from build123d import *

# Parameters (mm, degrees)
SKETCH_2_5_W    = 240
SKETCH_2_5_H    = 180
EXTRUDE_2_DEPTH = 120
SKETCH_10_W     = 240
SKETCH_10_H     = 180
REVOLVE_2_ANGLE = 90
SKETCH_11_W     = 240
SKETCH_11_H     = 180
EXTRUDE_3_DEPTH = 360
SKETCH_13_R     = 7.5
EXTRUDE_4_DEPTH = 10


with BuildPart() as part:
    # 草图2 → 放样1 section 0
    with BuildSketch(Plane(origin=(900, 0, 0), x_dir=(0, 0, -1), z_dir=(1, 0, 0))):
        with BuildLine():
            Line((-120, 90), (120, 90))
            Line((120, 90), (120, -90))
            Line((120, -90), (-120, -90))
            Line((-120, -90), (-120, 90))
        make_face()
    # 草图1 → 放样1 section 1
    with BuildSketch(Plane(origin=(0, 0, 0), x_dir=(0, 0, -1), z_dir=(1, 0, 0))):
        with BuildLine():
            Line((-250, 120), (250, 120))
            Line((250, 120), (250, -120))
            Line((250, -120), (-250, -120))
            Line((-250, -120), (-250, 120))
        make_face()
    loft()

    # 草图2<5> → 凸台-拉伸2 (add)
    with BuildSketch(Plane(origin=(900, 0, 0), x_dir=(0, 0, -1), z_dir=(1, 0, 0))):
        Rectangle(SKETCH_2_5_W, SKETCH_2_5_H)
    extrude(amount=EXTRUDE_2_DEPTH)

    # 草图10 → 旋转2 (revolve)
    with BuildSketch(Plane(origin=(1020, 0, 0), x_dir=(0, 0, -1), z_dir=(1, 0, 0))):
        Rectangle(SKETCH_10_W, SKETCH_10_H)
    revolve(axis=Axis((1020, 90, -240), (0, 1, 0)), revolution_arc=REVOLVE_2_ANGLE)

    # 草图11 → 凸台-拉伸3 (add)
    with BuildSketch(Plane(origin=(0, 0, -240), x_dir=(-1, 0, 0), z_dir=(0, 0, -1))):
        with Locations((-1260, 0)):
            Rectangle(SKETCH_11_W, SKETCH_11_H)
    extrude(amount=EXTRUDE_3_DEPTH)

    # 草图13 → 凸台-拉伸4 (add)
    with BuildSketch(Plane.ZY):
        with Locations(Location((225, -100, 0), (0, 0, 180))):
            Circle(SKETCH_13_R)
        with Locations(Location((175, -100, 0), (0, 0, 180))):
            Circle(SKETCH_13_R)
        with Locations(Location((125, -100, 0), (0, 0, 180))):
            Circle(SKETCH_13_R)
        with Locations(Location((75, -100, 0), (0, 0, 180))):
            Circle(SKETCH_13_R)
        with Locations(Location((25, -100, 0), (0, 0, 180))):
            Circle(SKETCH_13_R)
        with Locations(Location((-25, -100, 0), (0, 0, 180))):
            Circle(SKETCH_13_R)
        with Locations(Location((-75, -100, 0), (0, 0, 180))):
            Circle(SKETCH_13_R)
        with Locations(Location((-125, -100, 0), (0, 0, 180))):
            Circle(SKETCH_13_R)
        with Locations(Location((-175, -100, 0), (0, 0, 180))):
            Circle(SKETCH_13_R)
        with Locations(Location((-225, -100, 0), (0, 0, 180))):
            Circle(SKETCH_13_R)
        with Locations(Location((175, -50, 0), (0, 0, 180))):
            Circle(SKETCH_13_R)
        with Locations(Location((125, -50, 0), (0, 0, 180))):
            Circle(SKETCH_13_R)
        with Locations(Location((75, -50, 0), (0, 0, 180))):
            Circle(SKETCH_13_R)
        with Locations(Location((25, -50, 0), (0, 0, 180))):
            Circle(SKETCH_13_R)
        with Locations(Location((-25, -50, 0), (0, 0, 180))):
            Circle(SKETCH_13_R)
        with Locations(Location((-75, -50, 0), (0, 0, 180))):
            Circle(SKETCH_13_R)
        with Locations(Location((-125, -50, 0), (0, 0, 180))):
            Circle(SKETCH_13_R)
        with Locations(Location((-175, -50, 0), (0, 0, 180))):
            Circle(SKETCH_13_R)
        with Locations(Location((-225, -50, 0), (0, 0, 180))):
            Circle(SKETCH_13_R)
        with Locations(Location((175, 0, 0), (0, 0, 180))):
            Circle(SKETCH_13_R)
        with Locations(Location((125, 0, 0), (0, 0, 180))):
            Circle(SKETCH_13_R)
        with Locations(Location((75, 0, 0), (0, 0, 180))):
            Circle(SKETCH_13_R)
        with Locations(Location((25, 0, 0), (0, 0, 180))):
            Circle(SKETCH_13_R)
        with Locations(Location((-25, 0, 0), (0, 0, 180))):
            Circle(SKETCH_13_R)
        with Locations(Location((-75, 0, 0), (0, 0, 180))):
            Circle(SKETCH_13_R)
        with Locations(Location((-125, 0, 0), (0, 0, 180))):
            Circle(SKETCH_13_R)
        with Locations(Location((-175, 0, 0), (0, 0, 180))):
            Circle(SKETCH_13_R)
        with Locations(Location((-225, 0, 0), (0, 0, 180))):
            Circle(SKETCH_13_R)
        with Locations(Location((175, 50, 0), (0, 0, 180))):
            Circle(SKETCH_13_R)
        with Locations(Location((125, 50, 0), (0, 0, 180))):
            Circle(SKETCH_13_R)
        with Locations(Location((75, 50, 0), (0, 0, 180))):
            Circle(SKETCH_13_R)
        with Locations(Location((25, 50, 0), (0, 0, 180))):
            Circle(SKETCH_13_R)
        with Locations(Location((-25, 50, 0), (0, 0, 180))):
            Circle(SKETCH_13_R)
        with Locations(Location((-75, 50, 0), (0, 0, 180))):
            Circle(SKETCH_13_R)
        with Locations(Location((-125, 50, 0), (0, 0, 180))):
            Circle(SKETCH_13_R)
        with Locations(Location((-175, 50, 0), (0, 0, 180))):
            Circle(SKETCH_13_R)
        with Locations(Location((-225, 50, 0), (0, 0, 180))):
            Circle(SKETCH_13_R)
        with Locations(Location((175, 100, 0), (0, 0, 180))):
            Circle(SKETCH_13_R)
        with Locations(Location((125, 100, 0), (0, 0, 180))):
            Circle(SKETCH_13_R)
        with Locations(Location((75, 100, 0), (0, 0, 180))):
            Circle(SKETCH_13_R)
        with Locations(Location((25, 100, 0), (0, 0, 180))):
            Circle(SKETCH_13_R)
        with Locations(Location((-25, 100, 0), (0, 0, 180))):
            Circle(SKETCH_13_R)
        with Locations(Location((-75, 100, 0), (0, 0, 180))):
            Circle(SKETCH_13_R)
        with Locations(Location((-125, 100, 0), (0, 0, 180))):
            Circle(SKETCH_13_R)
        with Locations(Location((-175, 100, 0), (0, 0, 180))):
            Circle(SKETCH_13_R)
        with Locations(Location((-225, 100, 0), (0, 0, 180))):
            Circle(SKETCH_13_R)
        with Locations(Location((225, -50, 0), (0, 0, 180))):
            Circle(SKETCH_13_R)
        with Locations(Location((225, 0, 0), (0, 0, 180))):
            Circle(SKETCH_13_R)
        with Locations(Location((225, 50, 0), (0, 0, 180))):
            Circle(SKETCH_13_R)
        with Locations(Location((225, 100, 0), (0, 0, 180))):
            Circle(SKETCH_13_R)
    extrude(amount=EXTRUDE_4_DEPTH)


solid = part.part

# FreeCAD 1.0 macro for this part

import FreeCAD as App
import Part
import Sketcher
Q = App.Units.Quantity


def add_polygon(sketch, points):
    """Adds a closed chain of lines whose ends are joined by coincident constraints."""
    first, n = sketch.GeometryCount, len(points)
    for a, b in zip(points, points[1:] + points[:1]):
        sketch.addGeometry(Part.LineSegment(App.Vector(*a, 0), App.Vector(*b, 0)), False)
    for i in range(n):
        sketch.addConstraint(Sketcher.Constraint("Coincident", first + i, 2, first + (i + 1) % n, 1))

doc = App.newDocument("Part")
body = doc.addObject("PartDesign::Body", "Body")

sketch1 = body.newObject("Sketcher::SketchObject", "Sketch")
sketch1.AttachmentSupport = (doc.getObject("YZ_Plane"), [""])
sketch1.MapMode = "FlatFace"
sketch1.AttachmentOffset = App.Placement(App.Vector(0, 0, 900), App.Rotation())
add_polygon(sketch1, [(90, -120), (90, 120), (-90, 120), (-90, -120)])
sketch1.addConstraint(Sketcher.Constraint("Vertical", 0))
sketch1.addConstraint(Sketcher.Constraint("Horizontal", 1))
sketch1.addConstraint(Sketcher.Constraint("Vertical", 2))
sketch1.addConstraint(Sketcher.Constraint("Horizontal", 3))
sketch1.addConstraint(Sketcher.Constraint("Symmetric", 0, 2, 2, 2, -1, 1))
sketch1.addConstraint(Sketcher.Constraint("DistanceX", 1, 2, 1, 1, Q("180 mm")))
sketch1.addConstraint(Sketcher.Constraint("DistanceY", 0, 1, 0, 2, Q("240 mm")))

sketch2 = body.newObject("Sketcher::SketchObject", "Sketch001")
sketch2.AttachmentSupport = (doc.getObject("YZ_Plane"), [""])
sketch2.MapMode = "FlatFace"
add_polygon(sketch2, [(120, -250), (120, 250), (-120, 250), (-120, -250)])
sketch2.addConstraint(Sketcher.Constraint("Vertical", 0))
sketch2.addConstraint(Sketcher.Constraint("Horizontal", 1))
sketch2.addConstraint(Sketcher.Constraint("Vertical", 2))
sketch2.addConstraint(Sketcher.Constraint("Horizontal", 3))
sketch2.addConstraint(Sketcher.Constraint("Symmetric", 0, 2, 2, 2, -1, 1))
sketch2.addConstraint(Sketcher.Constraint("DistanceX", 1, 2, 1, 1, Q("240 mm")))
sketch2.addConstraint(Sketcher.Constraint("DistanceY", 0, 1, 0, 2, Q("500 mm")))

additiveloft = body.newObject("PartDesign::AdditiveLoft", "AdditiveLoft")
additiveloft.Profile = sketch1
additiveloft.Sections = [sketch2]

sketch3 = body.newObject("Sketcher::SketchObject", "Sketch002")
sketch3.AttachmentSupport = (doc.getObject("YZ_Plane"), [""])
sketch3.MapMode = "FlatFace"
sketch3.AttachmentOffset = App.Placement(App.Vector(0, 0, 900), App.Rotation())
add_polygon(sketch3, [(90, 120), (-90, 120), (-90, -120), (90, -120)])
sketch3.addConstraint(Sketcher.Constraint("Horizontal", 0))
sketch3.addConstraint(Sketcher.Constraint("Vertical", 1))
sketch3.addConstraint(Sketcher.Constraint("Horizontal", 2))
sketch3.addConstraint(Sketcher.Constraint("Vertical", 3))
sketch3.addConstraint(Sketcher.Constraint("Symmetric", 0, 2, 2, 2, -1, 1))
sketch3.addConstraint(Sketcher.Constraint("DistanceX", 0, 2, 0, 1, Q("180 mm")))
sketch3.addConstraint(Sketcher.Constraint("DistanceY", 1, 2, 1, 1, Q("240 mm")))
pad1 = body.newObject("PartDesign::Pad", "Pad")
pad1.Profile = sketch3
pad1.Length = 120

sketch4 = body.newObject("Sketcher::SketchObject", "Sketch003")
sketch4.AttachmentSupport = (doc.getObject("YZ_Plane"), [""])
sketch4.MapMode = "FlatFace"
sketch4.AttachmentOffset = App.Placement(App.Vector(0, 0, 1020), App.Rotation())
add_polygon(sketch4, [(90, 120), (-90, 120), (-90, -120), (90, -120)])
sketch4.addGeometry(Part.LineSegment(App.Vector(-90, -240, 0), App.Vector(90, -240, 0)), True)
sketch4.addConstraint(Sketcher.Constraint("Horizontal", 0))
sketch4.addConstraint(Sketcher.Constraint("Vertical", 1))
sketch4.addConstraint(Sketcher.Constraint("Horizontal", 2))
sketch4.addConstraint(Sketcher.Constraint("Vertical", 3))
sketch4.addConstraint(Sketcher.Constraint("Horizontal", 4))
sketch4.addConstraint(Sketcher.Constraint("Symmetric", 0, 2, 2, 2, -1, 1))
sketch4.addConstraint(Sketcher.Constraint("Vertical", 1, 2, 4, 1))
sketch4.addConstraint(Sketcher.Constraint("Vertical", 3, 2, 4, 2))
sketch4.addConstraint(Sketcher.Constraint("DistanceX", 0, 2, 0, 1, Q("180 mm")))
sketch4.addConstraint(Sketcher.Constraint("DistanceY", 1, 2, 1, 1, Q("240 mm")))
sketch4.addConstraint(Sketcher.Constraint("DistanceY", 4, 1, -1, 1, Q("240 mm")))
revolution = body.newObject("PartDesign::Revolution", "Revolution")
revolution.Profile = sketch4
revolution.ReferenceAxis = (sketch4, ["Axis0"])
revolution.Angle = 90

sketch5 = body.newObject("Sketcher::SketchObject", "Sketch004")
sketch5.AttachmentSupport = (doc.getObject("XY_Plane"), [""])
sketch5.MapMode = "FlatFace"
sketch5.AttachmentOffset = App.Placement(App.Vector(0, 0, -240), App.Rotation())
add_polygon(sketch5, [(1380, 90), (1380, -90), (1140, -90), (1140, 90)])
sketch5.addConstraint(Sketcher.Constraint("Vertical", 0))
sketch5.addConstraint(Sketcher.Constraint("Horizontal", 1))
sketch5.addConstraint(Sketcher.Constraint("Vertical", 2))
sketch5.addConstraint(Sketcher.Constraint("Horizontal", 3))
sketch5.addConstraint(Sketcher.Constraint("DistanceX", 1, 2, 1, 1, Q("240 mm")))
sketch5.addConstraint(Sketcher.Constraint("DistanceY", 0, 2, 0, 1, Q("180 mm")))
sketch5.addConstraint(Sketcher.Constraint("DistanceX", -1, 1, 0, 2, Q("1380 mm")))
sketch5.addConstraint(Sketcher.Constraint("DistanceY", 0, 2, -1, 1, Q("90 mm")))
pad2 = body.newObject("PartDesign::Pad", "Pad001")
pad2.Profile = sketch5
pad2.Length = 360
pad2.Reversed = True

sketch6 = body.newObject("Sketcher::SketchObject", "Sketch005")
sketch6.AttachmentSupport = (doc.getObject("YZ_Plane"), [""])
sketch6.MapMode = "FlatFace"
sketch6.addGeometry(Part.Circle(App.Vector(-100, 225, 0), App.Vector(0, 0, 1), 8), False)
sketch6.addGeometry(Part.Circle(App.Vector(-100, 175, 0), App.Vector(0, 0, 1), 8), False)
sketch6.addGeometry(Part.Circle(App.Vector(-100, 125, 0), App.Vector(0, 0, 1), 8), False)
sketch6.addGeometry(Part.Circle(App.Vector(-100, 75, 0), App.Vector(0, 0, 1), 8), False)
sketch6.addGeometry(Part.Circle(App.Vector(-100, 25, 0), App.Vector(0, 0, 1), 8), False)
sketch6.addGeometry(Part.Circle(App.Vector(-100, -25, 0), App.Vector(0, 0, 1), 8), False)
sketch6.addGeometry(Part.Circle(App.Vector(-100, -75, 0), App.Vector(0, 0, 1), 8), False)
sketch6.addGeometry(Part.Circle(App.Vector(-100, -125, 0), App.Vector(0, 0, 1), 8), False)
sketch6.addGeometry(Part.Circle(App.Vector(-100, -175, 0), App.Vector(0, 0, 1), 8), False)
sketch6.addGeometry(Part.Circle(App.Vector(-100, -225, 0), App.Vector(0, 0, 1), 8), False)
sketch6.addGeometry(Part.Circle(App.Vector(-50, 175, 0), App.Vector(0, 0, 1), 8), False)
sketch6.addGeometry(Part.Circle(App.Vector(-50, 125, 0), App.Vector(0, 0, 1), 8), False)
sketch6.addGeometry(Part.Circle(App.Vector(-50, 75, 0), App.Vector(0, 0, 1), 8), False)
sketch6.addGeometry(Part.Circle(App.Vector(-50, 25, 0), App.Vector(0, 0, 1), 8), False)
sketch6.addGeometry(Part.Circle(App.Vector(-50, -25, 0), App.Vector(0, 0, 1), 8), False)
sketch6.addGeometry(Part.Circle(App.Vector(-50, -75, 0), App.Vector(0, 0, 1), 8), False)
sketch6.addGeometry(Part.Circle(App.Vector(-50, -125, 0), App.Vector(0, 0, 1), 8), False)
sketch6.addGeometry(Part.Circle(App.Vector(-50, -175, 0), App.Vector(0, 0, 1), 8), False)
sketch6.addGeometry(Part.Circle(App.Vector(-50, -225, 0), App.Vector(0, 0, 1), 8), False)
sketch6.addGeometry(Part.Circle(App.Vector(0, 175, 0), App.Vector(0, 0, 1), 8), False)
sketch6.addGeometry(Part.Circle(App.Vector(0, 125, 0), App.Vector(0, 0, 1), 8), False)
sketch6.addGeometry(Part.Circle(App.Vector(0, 75, 0), App.Vector(0, 0, 1), 8), False)
sketch6.addGeometry(Part.Circle(App.Vector(0, 25, 0), App.Vector(0, 0, 1), 8), False)
sketch6.addGeometry(Part.Circle(App.Vector(0, -25, 0), App.Vector(0, 0, 1), 8), False)
sketch6.addGeometry(Part.Circle(App.Vector(0, -75, 0), App.Vector(0, 0, 1), 8), False)
sketch6.addGeometry(Part.Circle(App.Vector(0, -125, 0), App.Vector(0, 0, 1), 8), False)
sketch6.addGeometry(Part.Circle(App.Vector(0, -175, 0), App.Vector(0, 0, 1), 8), False)
sketch6.addGeometry(Part.Circle(App.Vector(0, -225, 0), App.Vector(0, 0, 1), 8), False)
sketch6.addGeometry(Part.Circle(App.Vector(50, 175, 0), App.Vector(0, 0, 1), 8), False)
sketch6.addGeometry(Part.Circle(App.Vector(50, 125, 0), App.Vector(0, 0, 1), 8), False)
sketch6.addGeometry(Part.Circle(App.Vector(50, 75, 0), App.Vector(0, 0, 1), 8), False)
sketch6.addGeometry(Part.Circle(App.Vector(50, 25, 0), App.Vector(0, 0, 1), 8), False)
sketch6.addGeometry(Part.Circle(App.Vector(50, -25, 0), App.Vector(0, 0, 1), 8), False)
sketch6.addGeometry(Part.Circle(App.Vector(50, -75, 0), App.Vector(0, 0, 1), 8), False)
sketch6.addGeometry(Part.Circle(App.Vector(50, -125, 0), App.Vector(0, 0, 1), 8), False)
sketch6.addGeometry(Part.Circle(App.Vector(50, -175, 0), App.Vector(0, 0, 1), 8), False)
sketch6.addGeometry(Part.Circle(App.Vector(50, -225, 0), App.Vector(0, 0, 1), 8), False)
sketch6.addGeometry(Part.Circle(App.Vector(100, 175, 0), App.Vector(0, 0, 1), 8), False)
sketch6.addGeometry(Part.Circle(App.Vector(100, 125, 0), App.Vector(0, 0, 1), 8), False)
sketch6.addGeometry(Part.Circle(App.Vector(100, 75, 0), App.Vector(0, 0, 1), 8), False)
sketch6.addGeometry(Part.Circle(App.Vector(100, 25, 0), App.Vector(0, 0, 1), 8), False)
sketch6.addGeometry(Part.Circle(App.Vector(100, -25, 0), App.Vector(0, 0, 1), 8), False)
sketch6.addGeometry(Part.Circle(App.Vector(100, -75, 0), App.Vector(0, 0, 1), 8), False)
sketch6.addGeometry(Part.Circle(App.Vector(100, -125, 0), App.Vector(0, 0, 1), 8), False)
sketch6.addGeometry(Part.Circle(App.Vector(100, -175, 0), App.Vector(0, 0, 1), 8), False)
sketch6.addGeometry(Part.Circle(App.Vector(100, -225, 0), App.Vector(0, 0, 1), 8), False)
sketch6.addGeometry(Part.Circle(App.Vector(-50, 225, 0), App.Vector(0, 0, 1), 8), False)
sketch6.addGeometry(Part.Circle(App.Vector(0, 225, 0), App.Vector(0, 0, 1), 8), False)
sketch6.addGeometry(Part.Circle(App.Vector(50, 225, 0), App.Vector(0, 0, 1), 8), False)
sketch6.addGeometry(Part.Circle(App.Vector(100, 225, 0), App.Vector(0, 0, 1), 8), False)
sketch6.addConstraint(Sketcher.Constraint("Equal", 0, 1))
sketch6.addConstraint(Sketcher.Constraint("Equal", 1, 2))
sketch6.addConstraint(Sketcher.Constraint("Equal", 2, 3))
sketch6.addConstraint(Sketcher.Constraint("Equal", 3, 4))
sketch6.addConstraint(Sketcher.Constraint("Equal", 4, 5))
sketch6.addConstraint(Sketcher.Constraint("Equal", 5, 6))
sketch6.addConstraint(Sketcher.Constraint("Equal", 6, 7))
sketch6.addConstraint(Sketcher.Constraint("Equal", 7, 8))
sketch6.addConstraint(Sketcher.Constraint("Equal", 8, 9))
sketch6.addConstraint(Sketcher.Constraint("Equal", 9, 10))
sketch6.addConstraint(Sketcher.Constraint("Equal", 10, 11))
sketch6.addConstraint(Sketcher.Constraint("Equal", 11, 12))
sketch6.addConstraint(Sketcher.Constraint("Equal", 12, 13))
sketch6.addConstraint(Sketcher.Constraint("Equal", 13, 14))
sketch6.addConstraint(Sketcher.Constraint("Equal", 14, 15))
sketch6.addConstraint(Sketcher.Constraint("Equal", 15, 16))
sketch6.addConstraint(Sketcher.Constraint("Equal", 16, 17))
sketch6.addConstraint(Sketcher.Constraint("Equal", 17, 18))
sketch6.addConstraint(Sketcher.Constraint("Equal", 18, 19))
sketch6.addConstraint(Sketcher.Constraint("Equal", 19, 20))
sketch6.addConstraint(Sketcher.Constraint("Equal", 20, 21))
sketch6.addConstraint(Sketcher.Constraint("Equal", 21, 22))
sketch6.addConstraint(Sketcher.Constraint("Equal", 22, 23))
sketch6.addConstraint(Sketcher.Constraint("Equal", 23, 24))
sketch6.addConstraint(Sketcher.Constraint("Equal", 24, 25))
sketch6.addConstraint(Sketcher.Constraint("Equal", 25, 26))
sketch6.addConstraint(Sketcher.Constraint("Equal", 26, 27))
sketch6.addConstraint(Sketcher.Constraint("Equal", 27, 28))
sketch6.addConstraint(Sketcher.Constraint("Equal", 28, 29))
sketch6.addConstraint(Sketcher.Constraint("Equal", 29, 30))
sketch6.addConstraint(Sketcher.Constraint("Equal", 30, 31))
sketch6.addConstraint(Sketcher.Constraint("Equal", 31, 32))
sketch6.addConstraint(Sketcher.Constraint("Equal", 32, 33))
sketch6.addConstraint(Sketcher.Constraint("Equal", 33, 34))
sketch6.addConstraint(Sketcher.Constraint("Equal", 34, 35))
sketch6.addConstraint(Sketcher.Constraint("Equal", 35, 36))
sketch6.addConstraint(Sketcher.Constraint("Equal", 36, 37))
sketch6.addConstraint(Sketcher.Constraint("Equal", 37, 38))
sketch6.addConstraint(Sketcher.Constraint("Equal", 38, 39))
sketch6.addConstraint(Sketcher.Constraint("Equal", 39, 40))
sketch6.addConstraint(Sketcher.Constraint("Equal", 40, 41))
sketch6.addConstraint(Sketcher.Constraint("Equal", 41, 42))
sketch6.addConstraint(Sketcher.Constraint("Equal", 42, 43))
sketch6.addConstraint(Sketcher.Constraint("Equal", 43, 44))
sketch6.addConstraint(Sketcher.Constraint("Equal", 44, 45))
sketch6.addConstraint(Sketcher.Constraint("Equal", 45, 46))
sketch6.addConstraint(Sketcher.Constraint("Equal", 46, 47))
sketch6.addConstraint(Sketcher.Constraint("Equal", 47, 48))
sketch6.addConstraint(Sketcher.Constraint("Equal", 48, 49))
sketch6.addConstraint(Sketcher.Constraint("Symmetric", 22, 3, 23, 3, -1, 1))
sketch6.addConstraint(Sketcher.Constraint("Symmetric", 21, 3, 24, 3, -1, 1))
sketch6.addConstraint(Sketcher.Constraint("Symmetric", 20, 3, 25, 3, -1, 1))
sketch6.addConstraint(Sketcher.Constraint("Symmetric", 19, 3, 26, 3, -1, 1))
sketch6.addConstraint(Sketcher.Constraint("Symmetric", 17, 3, 28, 3, -1, 1))
sketch6.addConstraint(Sketcher.Constraint("Symmetric", 16, 3, 29, 3, -1, 1))
sketch6.addConstraint(Sketcher.Constraint("Symmetric", 15, 3, 30, 3, -1, 1))
sketch6.addConstraint(Sketcher.Constraint("Symmetric", 14, 3, 31, 3, -1, 1))
sketch6.addConstraint(Sketcher.Constraint("Symmetric", 13, 3, 32, 3, -1, 1))
sketch6.addConstraint(Sketcher.Constraint("Symmetric", 12, 3, 33, 3, -1, 1))
sketch6.addConstraint(Sketcher.Constraint("Symmetric", 11, 3, 34, 3, -1, 1))
sketch6.addConstraint(Sketcher.Constraint("Symmetric", 10, 3, 35, 3, -1, 1))
sketch6.addConstraint(Sketcher.Constraint("Symmetric", 8, 3, 37, 3, -1, 1))
sketch6.addConstraint(Sketcher.Constraint("Symmetric", 7, 3, 38, 3, -1, 1))
sketch6.addConstraint(Sketcher.Constraint("Symmetric", 6, 3, 39, 3, -1, 1))
sketch6.addConstraint(Sketcher.Constraint("Symmetric", 5, 3, 40, 3, -1, 1))
sketch6.addConstraint(Sketcher.Constraint("Symmetric", 4, 3, 41, 3, -1, 1))
sketch6.addConstraint(Sketcher.Constraint("Symmetric", 3, 3, 42, 3, -1, 1))
sketch6.addConstraint(Sketcher.Constraint("Symmetric", 2, 3, 43, 3, -1, 1))
sketch6.addConstraint(Sketcher.Constraint("Symmetric", 1, 3, 44, 3, -1, 1))
sketch6.addConstraint(Sketcher.Constraint("Symmetric", 0, 3, 45, 3, -1, 1))
sketch6.addConstraint(Sketcher.Constraint("Symmetric", 36, 3, 46, 3, -1, 1))
sketch6.addConstraint(Sketcher.Constraint("Symmetric", 27, 3, 47, 3, -1, 1))
sketch6.addConstraint(Sketcher.Constraint("Symmetric", 18, 3, 48, 3, -1, 1))
sketch6.addConstraint(Sketcher.Constraint("Symmetric", 9, 3, 49, 3, -1, 1))
sketch6.addConstraint(Sketcher.Constraint("Symmetric", 10, 3, 28, 3, -2))
sketch6.addConstraint(Sketcher.Constraint("Symmetric", 11, 3, 29, 3, -2))
sketch6.addConstraint(Sketcher.Constraint("Symmetric", 12, 3, 30, 3, -2))
sketch6.addConstraint(Sketcher.Constraint("Symmetric", 13, 3, 31, 3, -2))
sketch6.addConstraint(Sketcher.Constraint("Symmetric", 18, 3, 36, 3, -2))
sketch6.addConstraint(Sketcher.Constraint("Symmetric", 1, 3, 37, 3, -2))
sketch6.addConstraint(Sketcher.Constraint("Symmetric", 2, 3, 38, 3, -2))
sketch6.addConstraint(Sketcher.Constraint("Symmetric", 3, 3, 39, 3, -2))
sketch6.addConstraint(Sketcher.Constraint("Symmetric", 4, 3, 40, 3, -2))
sketch6.addConstraint(Sketcher.Constraint("Symmetric", 9, 3, 45, 3, -2))
sketch6.addConstraint(Sketcher.Constraint("PointOnObject", 19, 3, -2))
sketch6.addConstraint(Sketcher.Constraint("PointOnObject", 20, 3, -2))
sketch6.addConstraint(Sketcher.Constraint("PointOnObject", 21, 3, -2))
sketch6.addConstraint(Sketcher.Constraint("PointOnObject", 22, 3, -2))
sketch6.addConstraint(Sketcher.Constraint("PointOnObject", 27, 3, -2))
sketch6.addConstraint(Sketcher.Constraint("Horizontal", 1, 3, 10, 3))
sketch6.addConstraint(Sketcher.Constraint("Horizontal", 2, 3, 11, 3))
sketch6.addConstraint(Sketcher.Constraint("Horizontal", 3, 3, 12, 3))
sketch6.addConstraint(Sketcher.Constraint("Horizontal", 4, 3, 13, 3))
sketch6.addConstraint(Sketcher.Constraint("Horizontal", 9, 3, 18, 3))
sketch6.addConstraint(Sketcher.Constraint("Horizontal", 10, 3, 19, 3))
sketch6.addConstraint(Sketcher.Constraint("Horizontal", 11, 3, 20, 3))
sketch6.addConstraint(Sketcher.Constraint("Horizontal", 12, 3, 21, 3))
sketch6.addConstraint(Sketcher.Constraint("Horizontal", 13, 3, 22, 3))
sketch6.addConstraint(Sketcher.Constraint("Horizontal", 18, 3, 27, 3))
sketch6.addConstraint(Sketcher.Constraint("Vertical", 0, 3, 1, 3))
sketch6.addConstraint(Sketcher.Constraint("Vertical", 1, 3, 2, 3))
sketch6.addConstraint(Sketcher.Constraint("Vertical", 2, 3, 3, 3))
sketch6.addConstraint(Sketcher.Constraint("Vertical", 3, 3, 4, 3))
sketch6.addConstraint(Sketcher.Constraint("Vertical", 10, 3, 11, 3))
sketch6.addConstraint(Sketcher.Constraint("Vertical", 11, 3, 12, 3))
sketch6.addConstraint(Sketcher.Constraint("Vertical", 12, 3, 13, 3))
sketch6.addConstraint(Sketcher.Constraint("Vertical", 17, 3, 18, 3))
sketch6.addConstraint(Sketcher.Constraint("Diameter", 0, Q("15 mm")))
sketch6.addConstraint(Sketcher.Constraint("DistanceX", 0, 3, -1, 1, Q("100 mm")))
sketch6.addConstraint(Sketcher.Constraint("DistanceY", -1, 1, 0, 3, Q("225 mm")))
sketch6.addConstraint(Sketcher.Constraint("DistanceY", -1, 1, 1, 3, Q("175 mm")))
sketch6.addConstraint(Sketcher.Constraint("DistanceY", -1, 1, 2, 3, Q("125 mm")))
sketch6.addConstraint(Sketcher.Constraint("DistanceY", -1, 1, 3, 3, Q("75 mm")))
sketch6.addConstraint(Sketcher.Constraint("DistanceY", -1, 1, 4, 3, Q("25 mm")))
sketch6.addConstraint(Sketcher.Constraint("DistanceX", 10, 3, -1, 1, Q("50 mm")))
pad3 = body.newObject("PartDesign::Pad", "Pad002")
pad3.Profile = sketch6
pad3.Length = 10
pad3.Reversed = True

doc.recompute()
